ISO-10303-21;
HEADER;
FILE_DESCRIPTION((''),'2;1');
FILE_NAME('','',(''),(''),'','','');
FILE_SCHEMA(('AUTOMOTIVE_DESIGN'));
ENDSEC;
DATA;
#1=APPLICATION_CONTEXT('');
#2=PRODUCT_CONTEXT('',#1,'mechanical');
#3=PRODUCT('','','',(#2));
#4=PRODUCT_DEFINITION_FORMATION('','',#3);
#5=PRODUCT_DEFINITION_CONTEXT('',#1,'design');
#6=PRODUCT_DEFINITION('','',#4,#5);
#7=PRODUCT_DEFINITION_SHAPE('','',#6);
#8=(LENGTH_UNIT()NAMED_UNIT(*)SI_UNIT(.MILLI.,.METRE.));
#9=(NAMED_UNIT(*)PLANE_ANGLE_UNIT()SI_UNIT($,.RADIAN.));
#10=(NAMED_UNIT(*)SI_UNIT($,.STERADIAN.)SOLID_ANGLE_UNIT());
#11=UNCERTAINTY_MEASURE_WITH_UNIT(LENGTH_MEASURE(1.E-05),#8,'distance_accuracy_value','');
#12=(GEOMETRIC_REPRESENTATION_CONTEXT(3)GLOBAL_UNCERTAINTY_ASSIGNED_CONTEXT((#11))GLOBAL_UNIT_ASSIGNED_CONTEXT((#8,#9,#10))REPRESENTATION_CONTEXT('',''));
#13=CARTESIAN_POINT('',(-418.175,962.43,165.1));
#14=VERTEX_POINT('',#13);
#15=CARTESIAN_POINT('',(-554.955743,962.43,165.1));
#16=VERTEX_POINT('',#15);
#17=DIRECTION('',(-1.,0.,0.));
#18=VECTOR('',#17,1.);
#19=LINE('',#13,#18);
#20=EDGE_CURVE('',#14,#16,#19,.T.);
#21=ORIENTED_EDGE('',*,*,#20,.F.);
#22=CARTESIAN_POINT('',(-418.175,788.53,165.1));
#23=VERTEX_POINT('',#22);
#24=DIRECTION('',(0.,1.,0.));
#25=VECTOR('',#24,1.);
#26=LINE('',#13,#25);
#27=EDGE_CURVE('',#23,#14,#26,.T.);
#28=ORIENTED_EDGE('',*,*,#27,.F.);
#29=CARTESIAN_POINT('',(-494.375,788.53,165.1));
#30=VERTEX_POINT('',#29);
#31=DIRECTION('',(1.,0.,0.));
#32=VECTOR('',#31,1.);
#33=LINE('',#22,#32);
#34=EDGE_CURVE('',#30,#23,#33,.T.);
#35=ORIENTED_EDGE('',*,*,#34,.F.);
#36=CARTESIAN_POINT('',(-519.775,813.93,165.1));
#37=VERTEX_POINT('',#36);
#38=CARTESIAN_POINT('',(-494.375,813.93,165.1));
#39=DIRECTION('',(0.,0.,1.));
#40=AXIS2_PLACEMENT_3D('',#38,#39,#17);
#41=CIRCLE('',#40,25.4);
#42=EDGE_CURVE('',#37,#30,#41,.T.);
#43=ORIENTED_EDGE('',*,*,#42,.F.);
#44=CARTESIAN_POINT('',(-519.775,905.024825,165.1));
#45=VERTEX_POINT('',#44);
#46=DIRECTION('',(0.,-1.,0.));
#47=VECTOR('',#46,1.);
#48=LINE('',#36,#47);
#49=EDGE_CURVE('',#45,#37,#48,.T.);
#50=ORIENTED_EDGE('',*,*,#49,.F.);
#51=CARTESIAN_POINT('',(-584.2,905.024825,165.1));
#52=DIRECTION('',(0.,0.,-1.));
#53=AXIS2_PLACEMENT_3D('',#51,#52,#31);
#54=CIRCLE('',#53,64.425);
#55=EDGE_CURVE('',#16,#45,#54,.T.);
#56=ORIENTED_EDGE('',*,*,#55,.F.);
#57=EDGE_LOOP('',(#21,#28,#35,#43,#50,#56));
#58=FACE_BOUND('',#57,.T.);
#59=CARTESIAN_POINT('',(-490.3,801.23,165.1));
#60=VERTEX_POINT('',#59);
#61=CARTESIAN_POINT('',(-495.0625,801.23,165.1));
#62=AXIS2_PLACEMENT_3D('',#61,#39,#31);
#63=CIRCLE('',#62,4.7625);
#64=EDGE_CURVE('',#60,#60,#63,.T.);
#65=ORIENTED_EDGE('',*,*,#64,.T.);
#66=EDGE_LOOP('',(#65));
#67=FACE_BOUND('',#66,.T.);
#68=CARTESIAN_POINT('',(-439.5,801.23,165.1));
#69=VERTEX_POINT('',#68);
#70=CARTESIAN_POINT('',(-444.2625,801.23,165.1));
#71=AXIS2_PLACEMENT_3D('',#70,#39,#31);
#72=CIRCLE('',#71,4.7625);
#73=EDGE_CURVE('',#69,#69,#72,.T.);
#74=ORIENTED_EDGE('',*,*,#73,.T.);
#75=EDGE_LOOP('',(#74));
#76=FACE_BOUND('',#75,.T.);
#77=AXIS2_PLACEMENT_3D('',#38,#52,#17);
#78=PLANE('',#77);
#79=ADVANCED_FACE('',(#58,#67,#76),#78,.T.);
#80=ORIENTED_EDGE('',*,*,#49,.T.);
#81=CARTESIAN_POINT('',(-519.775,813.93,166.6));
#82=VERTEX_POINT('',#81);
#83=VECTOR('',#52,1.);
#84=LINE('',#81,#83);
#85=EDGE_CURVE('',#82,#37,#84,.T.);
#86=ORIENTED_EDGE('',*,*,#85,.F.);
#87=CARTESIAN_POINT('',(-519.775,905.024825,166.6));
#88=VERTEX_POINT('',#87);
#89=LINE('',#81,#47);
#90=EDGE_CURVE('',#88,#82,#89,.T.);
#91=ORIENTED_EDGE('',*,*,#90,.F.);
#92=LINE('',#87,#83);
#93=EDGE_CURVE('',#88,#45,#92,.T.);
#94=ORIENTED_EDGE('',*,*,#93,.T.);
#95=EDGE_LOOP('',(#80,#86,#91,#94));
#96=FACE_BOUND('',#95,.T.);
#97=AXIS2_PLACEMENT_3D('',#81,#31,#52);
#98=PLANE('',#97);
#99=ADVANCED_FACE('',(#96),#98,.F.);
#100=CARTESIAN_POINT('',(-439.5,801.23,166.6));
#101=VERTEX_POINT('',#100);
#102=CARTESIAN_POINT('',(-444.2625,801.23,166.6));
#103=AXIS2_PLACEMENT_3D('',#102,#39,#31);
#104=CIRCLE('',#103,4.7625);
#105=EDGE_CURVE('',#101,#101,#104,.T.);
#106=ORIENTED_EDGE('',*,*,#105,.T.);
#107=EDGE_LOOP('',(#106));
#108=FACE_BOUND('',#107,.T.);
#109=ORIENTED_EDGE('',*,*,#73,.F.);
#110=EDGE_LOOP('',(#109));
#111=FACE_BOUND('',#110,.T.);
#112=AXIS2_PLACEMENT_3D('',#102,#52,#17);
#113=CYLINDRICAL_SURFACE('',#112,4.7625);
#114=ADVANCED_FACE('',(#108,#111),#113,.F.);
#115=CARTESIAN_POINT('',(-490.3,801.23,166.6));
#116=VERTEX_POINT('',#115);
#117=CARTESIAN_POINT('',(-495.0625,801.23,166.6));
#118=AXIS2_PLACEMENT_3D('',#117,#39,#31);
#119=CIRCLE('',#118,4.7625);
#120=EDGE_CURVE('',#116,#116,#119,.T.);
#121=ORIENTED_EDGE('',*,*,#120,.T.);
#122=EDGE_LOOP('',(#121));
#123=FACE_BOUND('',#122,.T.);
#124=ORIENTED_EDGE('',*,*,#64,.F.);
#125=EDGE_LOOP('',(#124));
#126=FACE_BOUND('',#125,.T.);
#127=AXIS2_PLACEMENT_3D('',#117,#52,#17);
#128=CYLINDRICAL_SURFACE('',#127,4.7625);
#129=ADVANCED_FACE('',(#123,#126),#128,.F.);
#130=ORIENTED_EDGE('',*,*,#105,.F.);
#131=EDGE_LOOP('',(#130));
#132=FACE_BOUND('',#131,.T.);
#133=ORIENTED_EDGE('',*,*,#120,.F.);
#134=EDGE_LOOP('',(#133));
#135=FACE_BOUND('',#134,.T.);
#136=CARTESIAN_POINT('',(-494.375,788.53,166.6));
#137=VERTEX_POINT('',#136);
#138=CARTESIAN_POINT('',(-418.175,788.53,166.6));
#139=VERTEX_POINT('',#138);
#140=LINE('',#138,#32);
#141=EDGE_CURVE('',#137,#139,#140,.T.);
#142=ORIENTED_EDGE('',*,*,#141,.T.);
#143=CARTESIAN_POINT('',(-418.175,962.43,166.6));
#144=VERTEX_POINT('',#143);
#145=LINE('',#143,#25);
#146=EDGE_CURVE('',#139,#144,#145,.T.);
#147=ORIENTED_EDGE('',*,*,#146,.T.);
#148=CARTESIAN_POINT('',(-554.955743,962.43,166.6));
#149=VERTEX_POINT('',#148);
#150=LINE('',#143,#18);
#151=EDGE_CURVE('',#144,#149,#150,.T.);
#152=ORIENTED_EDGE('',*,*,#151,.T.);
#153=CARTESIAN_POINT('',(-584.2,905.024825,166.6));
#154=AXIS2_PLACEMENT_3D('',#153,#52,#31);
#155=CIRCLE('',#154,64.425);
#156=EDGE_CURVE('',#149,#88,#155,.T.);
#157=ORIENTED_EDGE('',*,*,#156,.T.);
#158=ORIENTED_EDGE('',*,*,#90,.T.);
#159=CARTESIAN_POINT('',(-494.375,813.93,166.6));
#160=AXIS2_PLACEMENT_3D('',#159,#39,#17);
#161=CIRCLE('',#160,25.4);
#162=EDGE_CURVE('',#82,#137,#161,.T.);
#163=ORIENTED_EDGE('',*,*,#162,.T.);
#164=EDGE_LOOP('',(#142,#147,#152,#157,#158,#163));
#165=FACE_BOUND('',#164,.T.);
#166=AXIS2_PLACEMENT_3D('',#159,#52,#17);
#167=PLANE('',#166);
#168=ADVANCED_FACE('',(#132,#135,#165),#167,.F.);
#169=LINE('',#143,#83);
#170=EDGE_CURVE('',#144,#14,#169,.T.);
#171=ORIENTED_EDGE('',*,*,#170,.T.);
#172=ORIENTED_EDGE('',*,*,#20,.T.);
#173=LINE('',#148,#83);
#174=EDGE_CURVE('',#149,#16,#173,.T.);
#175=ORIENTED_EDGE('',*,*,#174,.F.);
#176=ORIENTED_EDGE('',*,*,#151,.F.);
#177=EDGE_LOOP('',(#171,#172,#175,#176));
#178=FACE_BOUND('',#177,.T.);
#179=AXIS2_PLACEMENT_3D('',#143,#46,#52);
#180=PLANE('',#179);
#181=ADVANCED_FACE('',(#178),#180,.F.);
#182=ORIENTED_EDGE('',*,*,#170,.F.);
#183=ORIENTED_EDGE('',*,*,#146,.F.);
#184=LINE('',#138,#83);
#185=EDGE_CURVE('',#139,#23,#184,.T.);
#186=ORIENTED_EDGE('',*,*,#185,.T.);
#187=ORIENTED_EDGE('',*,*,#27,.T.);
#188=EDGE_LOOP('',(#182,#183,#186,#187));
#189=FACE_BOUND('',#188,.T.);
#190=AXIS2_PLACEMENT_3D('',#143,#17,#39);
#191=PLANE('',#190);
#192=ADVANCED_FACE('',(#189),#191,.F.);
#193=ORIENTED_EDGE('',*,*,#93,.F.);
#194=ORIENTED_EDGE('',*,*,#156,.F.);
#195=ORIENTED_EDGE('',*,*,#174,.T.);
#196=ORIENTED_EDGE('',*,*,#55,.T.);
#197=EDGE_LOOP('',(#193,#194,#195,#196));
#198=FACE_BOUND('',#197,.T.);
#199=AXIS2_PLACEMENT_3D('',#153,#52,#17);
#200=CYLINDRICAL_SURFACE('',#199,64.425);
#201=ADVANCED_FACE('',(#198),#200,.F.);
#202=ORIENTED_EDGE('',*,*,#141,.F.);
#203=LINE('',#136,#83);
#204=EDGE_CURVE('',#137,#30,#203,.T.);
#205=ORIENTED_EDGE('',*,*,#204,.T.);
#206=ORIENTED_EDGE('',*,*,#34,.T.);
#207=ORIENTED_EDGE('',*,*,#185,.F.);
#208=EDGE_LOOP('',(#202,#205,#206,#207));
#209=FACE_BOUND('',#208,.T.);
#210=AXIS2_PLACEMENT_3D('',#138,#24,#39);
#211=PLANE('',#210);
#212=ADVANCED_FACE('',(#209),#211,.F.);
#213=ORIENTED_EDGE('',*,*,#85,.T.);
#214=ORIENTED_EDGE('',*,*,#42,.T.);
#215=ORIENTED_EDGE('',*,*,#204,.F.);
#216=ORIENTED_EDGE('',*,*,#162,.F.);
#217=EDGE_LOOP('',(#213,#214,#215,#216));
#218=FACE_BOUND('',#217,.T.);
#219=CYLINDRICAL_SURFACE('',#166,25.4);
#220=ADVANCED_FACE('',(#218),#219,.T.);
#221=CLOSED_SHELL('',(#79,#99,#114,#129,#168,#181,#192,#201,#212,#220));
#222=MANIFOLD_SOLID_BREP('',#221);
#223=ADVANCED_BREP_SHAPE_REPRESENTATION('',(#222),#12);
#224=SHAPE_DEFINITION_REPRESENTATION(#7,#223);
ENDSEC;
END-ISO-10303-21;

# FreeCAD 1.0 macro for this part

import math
import FreeCAD as App
import Part
import Sketcher
Q = App.Units.Quantity

doc = App.newDocument("Part")
params = doc.addObject("Spreadsheet::Sheet", "Params")
for row, (alias, value) in enumerate([
    ("sketch1_radius", "1 in"),
    ("sketch1_width", "3 in"),
    ("sketch1_diameter", "0.375 in"),
    ("pad1_length", "1.5 mm"),
], start=1):
    params.set(f"A{row}", alias)
    params.set(f"B{row}", "=" + value)
    params.setAlias(f"B{row}", alias)

body = doc.addObject("PartDesign::Body", "Body")

# Sketch on XY plane
sketch1 = doc.addObject("Sketcher::SketchObject", "Sketch")
body.addObject(sketch1)
sketch1.AttachmentSupport = (doc.XY_Plane, [""])
sketch1.MapMode = "FlatFace"
sketch1.AttachmentOffset = App.Placement(App.Vector(0, 0, 6.5 * 25.4), App.Rotation())
sketch1.addGeometry([
    Part.LineSegment(App.Vector(-418.2, 962.4, 0), App.Vector(-555, 962.4, 0)),  # 0
    Part.ArcOfCircle(Part.Circle(App.Vector(-584.2, 905, 0), App.Vector(0, 0, 1), 64.4), math.radians(0), math.radians(63)),  # 1
    Part.LineSegment(App.Vector(-519.8, 905, 0), App.Vector(-519.8, 813.9, 0)),  # 2
    Part.ArcOfCircle(Part.Circle(App.Vector(-494.4, 813.9, 0), App.Vector(0, 0, 1), 25.4), math.radians(180), math.radians(270)),  # 3
    Part.LineSegment(App.Vector(-494.4, 788.5, 0), App.Vector(-418.2, 788.5, 0)),  # 4
    Part.LineSegment(App.Vector(-418.2, 788.5, 0), App.Vector(-418.2, 962.4, 0)),  # 5
    Part.Circle(App.Vector(-495.1, 801.2, 0), App.Vector(0, 0, 1), 4.8),  # 6
    Part.Circle(App.Vector(-444.3, 801.2, 0), App.Vector(0, 0, 1), 4.8),  # 7
], False)
sketch1.addConstraint([
    Sketcher.Constraint("Coincident", 0, 2, 1, 2),
    Sketcher.Constraint("Tangent", 1, 1, 2, 1),
    Sketcher.Constraint("Tangent", 2, 2, 3, 1),
    Sketcher.Constraint("Tangent", 3, 2, 4, 1),
    Sketcher.Constraint("Coincident", 4, 2, 5, 1),
    Sketcher.Constraint("Coincident", 5, 2, 0, 1),
    Sketcher.Constraint("Horizontal", 0),
    Sketcher.Constraint("Vertical", 2),
    Sketcher.Constraint("Horizontal", 4),
    Sketcher.Constraint("Vertical", 5),
    Sketcher.Constraint("Equal", 6, 7),
    Sketcher.Constraint("Horizontal", 6, 3, 7, 3),
    Sketcher.Constraint("Radius", 3, Q("1 in")),
    Sketcher.Constraint("DistanceX", 4, 1, 4, 2, Q("3 in")),
    Sketcher.Constraint("Diameter", 6, Q("0.375 in")),
    Sketcher.Constraint("DistanceX", 1, 3, -1, 1, Q("23 in")),
    Sketcher.Constraint("DistanceX", 6, 3, 7, 3, Q("2 in")),
    Sketcher.Constraint("DistanceY", 6, 3, 3, 3, Q("0.5 in")),
    Sketcher.Constraint("Radius", 1, 64.425),
    Sketcher.Constraint("DistanceY", 5, 1, 5, 2, 173.9),
    Sketcher.Constraint("DistanceY", -1, 1, 3, 3, 813.93),
    Sketcher.Constraint("DistanceX", 6, 3, -1, 1, 495.0625),
    Sketcher.Constraint("DistanceX", 0, 2, 0, 1, 136.780743),
])
sketch1.setExpression("Constraints[12]", "Params.sketch1_radius")
sketch1.setExpression("Constraints[13]", "Params.sketch1_width")
sketch1.setExpression("Constraints[14]", "Params.sketch1_diameter")
pad1 = doc.addObject("PartDesign::Pad", "Pad")
body.addObject(pad1)
pad1.Profile = sketch1
pad1.setExpression("Length", "Params.pad1_length")

doc.recompute()
